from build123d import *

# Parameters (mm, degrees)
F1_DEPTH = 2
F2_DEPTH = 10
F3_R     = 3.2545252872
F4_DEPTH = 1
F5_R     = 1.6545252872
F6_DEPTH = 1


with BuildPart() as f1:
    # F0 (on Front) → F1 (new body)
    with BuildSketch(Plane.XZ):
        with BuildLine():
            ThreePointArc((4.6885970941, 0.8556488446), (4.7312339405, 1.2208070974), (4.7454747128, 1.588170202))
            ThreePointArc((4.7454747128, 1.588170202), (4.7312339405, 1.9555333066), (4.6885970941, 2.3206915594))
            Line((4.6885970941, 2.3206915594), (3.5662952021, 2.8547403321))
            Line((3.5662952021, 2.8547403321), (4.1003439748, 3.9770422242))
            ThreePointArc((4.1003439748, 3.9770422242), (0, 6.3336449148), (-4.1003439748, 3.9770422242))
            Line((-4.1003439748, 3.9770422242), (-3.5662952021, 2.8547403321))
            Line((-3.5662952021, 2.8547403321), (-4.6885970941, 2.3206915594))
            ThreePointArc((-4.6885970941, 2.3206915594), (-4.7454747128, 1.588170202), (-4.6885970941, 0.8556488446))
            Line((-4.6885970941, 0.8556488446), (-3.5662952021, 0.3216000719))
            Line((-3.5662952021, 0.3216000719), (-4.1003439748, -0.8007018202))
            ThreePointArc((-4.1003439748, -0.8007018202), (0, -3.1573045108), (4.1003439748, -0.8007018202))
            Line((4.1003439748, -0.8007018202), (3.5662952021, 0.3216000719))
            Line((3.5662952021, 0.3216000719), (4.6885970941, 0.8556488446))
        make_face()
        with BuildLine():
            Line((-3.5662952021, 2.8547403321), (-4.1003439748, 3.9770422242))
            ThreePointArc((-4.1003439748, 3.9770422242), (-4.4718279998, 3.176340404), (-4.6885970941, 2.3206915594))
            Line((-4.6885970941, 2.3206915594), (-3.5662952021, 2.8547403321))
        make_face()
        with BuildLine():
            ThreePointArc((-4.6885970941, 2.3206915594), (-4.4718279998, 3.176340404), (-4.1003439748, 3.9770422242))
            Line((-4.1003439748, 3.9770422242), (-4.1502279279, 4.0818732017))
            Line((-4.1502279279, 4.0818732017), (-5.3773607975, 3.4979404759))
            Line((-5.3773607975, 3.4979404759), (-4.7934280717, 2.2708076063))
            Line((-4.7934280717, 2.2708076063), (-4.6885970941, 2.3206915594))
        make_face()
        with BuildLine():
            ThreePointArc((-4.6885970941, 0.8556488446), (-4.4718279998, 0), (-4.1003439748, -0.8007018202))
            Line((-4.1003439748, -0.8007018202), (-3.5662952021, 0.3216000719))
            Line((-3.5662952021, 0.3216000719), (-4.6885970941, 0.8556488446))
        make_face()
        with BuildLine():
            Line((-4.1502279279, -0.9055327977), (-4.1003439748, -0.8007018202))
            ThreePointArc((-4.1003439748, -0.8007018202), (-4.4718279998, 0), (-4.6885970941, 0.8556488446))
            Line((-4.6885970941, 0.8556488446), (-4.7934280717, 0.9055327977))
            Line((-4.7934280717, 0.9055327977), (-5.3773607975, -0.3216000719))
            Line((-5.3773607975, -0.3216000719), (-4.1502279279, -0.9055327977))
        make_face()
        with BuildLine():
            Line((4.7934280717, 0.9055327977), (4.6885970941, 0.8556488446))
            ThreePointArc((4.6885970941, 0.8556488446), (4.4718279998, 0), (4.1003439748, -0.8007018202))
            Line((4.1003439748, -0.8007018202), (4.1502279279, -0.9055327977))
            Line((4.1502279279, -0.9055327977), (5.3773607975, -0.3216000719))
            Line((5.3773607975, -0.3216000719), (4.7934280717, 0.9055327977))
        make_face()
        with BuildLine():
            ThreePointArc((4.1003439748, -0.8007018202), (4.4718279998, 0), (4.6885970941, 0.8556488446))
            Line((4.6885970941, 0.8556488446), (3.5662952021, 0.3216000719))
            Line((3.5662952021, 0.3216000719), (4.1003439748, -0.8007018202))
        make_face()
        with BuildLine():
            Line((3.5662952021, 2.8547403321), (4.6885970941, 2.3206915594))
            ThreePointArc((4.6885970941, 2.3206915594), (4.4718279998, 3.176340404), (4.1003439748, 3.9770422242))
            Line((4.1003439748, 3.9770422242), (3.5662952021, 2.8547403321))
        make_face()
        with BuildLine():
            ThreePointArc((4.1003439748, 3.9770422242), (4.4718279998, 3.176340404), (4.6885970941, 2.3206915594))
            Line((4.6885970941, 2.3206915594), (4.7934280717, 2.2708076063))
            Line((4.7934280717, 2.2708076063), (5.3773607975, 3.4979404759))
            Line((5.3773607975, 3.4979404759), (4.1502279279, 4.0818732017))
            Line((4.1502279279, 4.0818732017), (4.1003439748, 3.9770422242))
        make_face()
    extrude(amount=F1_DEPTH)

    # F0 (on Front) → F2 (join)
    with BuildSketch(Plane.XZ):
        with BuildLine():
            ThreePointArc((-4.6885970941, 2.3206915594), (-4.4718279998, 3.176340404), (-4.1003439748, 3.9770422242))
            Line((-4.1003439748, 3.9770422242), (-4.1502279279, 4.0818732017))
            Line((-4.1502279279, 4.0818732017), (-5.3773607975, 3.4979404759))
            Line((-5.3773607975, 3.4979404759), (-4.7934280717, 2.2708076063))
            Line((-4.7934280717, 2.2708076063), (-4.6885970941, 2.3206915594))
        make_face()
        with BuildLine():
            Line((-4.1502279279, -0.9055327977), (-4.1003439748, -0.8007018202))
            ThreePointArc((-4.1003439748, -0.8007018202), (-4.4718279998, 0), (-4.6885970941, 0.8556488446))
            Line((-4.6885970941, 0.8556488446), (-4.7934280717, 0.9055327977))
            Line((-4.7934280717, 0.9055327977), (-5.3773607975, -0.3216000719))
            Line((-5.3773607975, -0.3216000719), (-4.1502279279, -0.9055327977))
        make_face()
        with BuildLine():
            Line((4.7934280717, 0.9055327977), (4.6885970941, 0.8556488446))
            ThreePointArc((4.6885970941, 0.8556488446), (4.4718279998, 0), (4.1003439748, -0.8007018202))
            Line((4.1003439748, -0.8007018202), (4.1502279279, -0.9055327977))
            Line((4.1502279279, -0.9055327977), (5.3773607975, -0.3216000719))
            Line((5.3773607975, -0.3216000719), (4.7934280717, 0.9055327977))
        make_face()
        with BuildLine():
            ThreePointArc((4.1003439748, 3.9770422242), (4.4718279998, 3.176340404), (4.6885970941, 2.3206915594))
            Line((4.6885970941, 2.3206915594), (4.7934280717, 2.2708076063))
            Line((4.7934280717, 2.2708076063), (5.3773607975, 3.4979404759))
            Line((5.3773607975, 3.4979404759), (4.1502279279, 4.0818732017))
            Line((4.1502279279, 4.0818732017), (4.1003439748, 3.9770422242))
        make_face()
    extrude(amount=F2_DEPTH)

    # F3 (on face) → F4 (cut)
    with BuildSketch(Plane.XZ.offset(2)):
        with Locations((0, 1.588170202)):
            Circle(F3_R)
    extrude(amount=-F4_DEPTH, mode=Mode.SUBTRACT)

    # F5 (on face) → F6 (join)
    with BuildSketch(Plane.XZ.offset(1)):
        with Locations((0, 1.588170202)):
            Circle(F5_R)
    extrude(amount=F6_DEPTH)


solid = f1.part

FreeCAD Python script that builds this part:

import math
import FreeCAD as App
import Part
import Sketcher

V = App.Vector
Q = App.Units.Quantity

doc = App.newDocument("Part")
params = doc.addObject("Spreadsheet::Sheet", "Params")
for row, (alias, value) in enumerate([
    ("pad1_length", "2 mm"),
    ("pad2_length", "10 mm"),
    ("pocket1_length", "1 mm"),
    ("pad3_length", "1 mm"),
], start=1):
    params.set(f"A{row}", alias)
    params.set(f"B{row}", "=" + value)
    params.setAlias(f"B{row}", alias)

body = doc.addObject("PartDesign::Body", "Body")

# Sketch on XZ plane
sketch1 = doc.addObject("Sketcher::SketchObject", "Sketch")
body.addObject(sketch1)
sketch1.AttachmentSupport = (doc.XZ_Plane, [""])
sketch1.MapMode = "FlatFace"
sketch1.addGeometry(Part.ArcOfCircle(Part.Circle(V(0, 1.59, 0), V(0, 0, 1), 4.75), math.radians(-8.88), math.radians(0)), False)
sketch1.addGeometry(Part.ArcOfCircle(Part.Circle(V(0, 1.59, 0), V(0, 0, 1), 4.75), math.radians(0), math.radians(8.88)), False)
sketch1.addGeometry(Part.LineSegment(V(4.69, 2.32, 0), V(4.79, 2.27, 0)), False)
sketch1.addGeometry(Part.LineSegment(V(4.79, 2.27, 0), V(5.38, 3.5, 0)), False)
sketch1.addGeometry(Part.LineSegment(V(5.38, 3.5, 0), V(4.15, 4.08, 0)), False)
sketch1.addGeometry(Part.LineSegment(V(4.15, 4.08, 0), V(4.1, 3.98, 0)), False)
sketch1.addGeometry(Part.ArcOfCircle(Part.Circle(V(0, 1.59, 0), V(0, 0, 1), 4.75), math.radians(30), math.radians(150)), False)
sketch1.addGeometry(Part.LineSegment(V(-4.1, 3.98, 0), V(-4.15, 4.08, 0)), False)
sketch1.addGeometry(Part.LineSegment(V(-4.15, 4.08, 0), V(-5.38, 3.5, 0)), False)
sketch1.addGeometry(Part.LineSegment(V(-5.38, 3.5, 0), V(-4.79, 2.27, 0)), False)
sketch1.addGeometry(Part.LineSegment(V(-4.79, 2.27, 0), V(-4.69, 2.32, 0)), False)
sketch1.addGeometry(Part.ArcOfCircle(Part.Circle(V(0, 1.59, 0), V(0, 0, 1), 4.75), math.radians(171.12), math.radians(188.88)), False)
sketch1.addGeometry(Part.LineSegment(V(-4.69, 0.86, 0), V(-4.79, 0.91, 0)), False)
sketch1.addGeometry(Part.LineSegment(V(-4.79, 0.91, 0), V(-5.38, -0.32, 0)), False)
sketch1.addGeometry(Part.LineSegment(V(-5.38, -0.32, 0), V(-4.15, -0.91, 0)), False)
sketch1.addGeometry(Part.LineSegment(V(-4.15, -0.91, 0), V(-4.1, -0.8, 0)), False)
sketch1.addGeometry(Part.ArcOfCircle(Part.Circle(V(0, 1.59, 0), V(0, 0, 1), 4.75), math.radians(-150), math.radians(-30)), False)
sketch1.addGeometry(Part.LineSegment(V(4.1, -0.8, 0), V(4.15, -0.91, 0)), False)
sketch1.addGeometry(Part.LineSegment(V(4.15, -0.91, 0), V(5.38, -0.32, 0)), False)
sketch1.addGeometry(Part.LineSegment(V(5.38, -0.32, 0), V(4.79, 0.91, 0)), False)
sketch1.addGeometry(Part.LineSegment(V(4.79, 0.91, 0), V(4.69, 0.86, 0)), False)
sketch1.addConstraint(Sketcher.Constraint("Tangent", 0, 2, 1, 1))
sketch1.addConstraint(Sketcher.Constraint("Coincident", 1, 2, 2, 1))
sketch1.addConstraint(Sketcher.Constraint("Coincident", 2, 2, 3, 1))
sketch1.addConstraint(Sketcher.Constraint("Coincident", 3, 2, 4, 1))
sketch1.addConstraint(Sketcher.Constraint("Coincident", 4, 2, 5, 1))
sketch1.addConstraint(Sketcher.Constraint("Coincident", 5, 2, 6, 1))
sketch1.addConstraint(Sketcher.Constraint("Coincident", 6, 2, 7, 1))
sketch1.addConstraint(Sketcher.Constraint("Coincident", 7, 2, 8, 1))
sketch1.addConstraint(Sketcher.Constraint("Coincident", 8, 2, 9, 1))
sketch1.addConstraint(Sketcher.Constraint("Coincident", 9, 2, 10, 1))
sketch1.addConstraint(Sketcher.Constraint("Coincident", 10, 2, 11, 1))
sketch1.addConstraint(Sketcher.Constraint("Coincident", 11, 2, 12, 1))
sketch1.addConstraint(Sketcher.Constraint("Coincident", 12, 2, 13, 1))
sketch1.addConstraint(Sketcher.Constraint("Coincident", 13, 2, 14, 1))
sketch1.addConstraint(Sketcher.Constraint("Coincident", 14, 2, 15, 1))
sketch1.addConstraint(Sketcher.Constraint("Coincident", 15, 2, 16, 1))
sketch1.addConstraint(Sketcher.Constraint("Coincident", 16, 2, 17, 1))
sketch1.addConstraint(Sketcher.Constraint("Coincident", 17, 2, 18, 1))
sketch1.addConstraint(Sketcher.Constraint("Coincident", 18, 2, 19, 1))
sketch1.addConstraint(Sketcher.Constraint("Coincident", 19, 2, 20, 1))
sketch1.addConstraint(Sketcher.Constraint("Coincident", 20, 2, 0, 1))
sketch1.addConstraint(Sketcher.Constraint("Coincident", 6, 3, 0, 3))
sketch1.addConstraint(Sketcher.Constraint("Coincident", 11, 3, 0, 3))
sketch1.addConstraint(Sketcher.Constraint("Coincident", 16, 3, 0, 3))
sketch1.addConstraint(Sketcher.Constraint("Equal", 0, 1))
sketch1.addConstraint(Sketcher.Constraint("Equal", 1, 6))
sketch1.addConstraint(Sketcher.Constraint("Equal", 6, 11))
sketch1.addConstraint(Sketcher.Constraint("Equal", 11, 16))
sketch1.addConstraint(Sketcher.Constraint("Symmetric", 5, 2, 6, 2, -2))
sketch1.addConstraint(Sketcher.Constraint("Symmetric", 4, 2, 7, 2, -2))
sketch1.addConstraint(Sketcher.Constraint("Symmetric", 3, 2, 8, 2, -2))
sketch1.addConstraint(Sketcher.Constraint("Symmetric", 2, 2, 9, 2, -2))
sketch1.addConstraint(Sketcher.Constraint("Symmetric", 14, 2, 17, 2, -2))
sketch1.addConstraint(Sketcher.Constraint("Symmetric", 13, 2, 18, 2, -2))
sketch1.addConstraint(Sketcher.Constraint("Symmetric", 12, 2, 19, 2, -2))
sketch1.addConstraint(Sketcher.Constraint("Perpendicular", 2, 3))
sketch1.addConstraint(Sketcher.Constraint("Perpendicular", 3, 4))
sketch1.addConstraint(Sketcher.Constraint("Perpendicular", 4, 5))
sketch1.addConstraint(Sketcher.Constraint("Perpendicular", 9, 10))
sketch1.addConstraint(Sketcher.Constraint("Perpendicular", 5, 12))
sketch1.addConstraint(Sketcher.Constraint("Perpendicular", 12, 13))
sketch1.addConstraint(Sketcher.Constraint("Perpendicular", 13, 14))
sketch1.addConstraint(Sketcher.Constraint("Perpendicular", 14, 15))
sketch1.addConstraint(Sketcher.Constraint("Perpendicular", 10, 17))
sketch1.addConstraint(Sketcher.Constraint("Perpendicular", 19, 20))
sketch1.addConstraint(Sketcher.Constraint("Horizontal", 16, 3, 0, 2))
sketch1.addConstraint(Sketcher.Constraint("Vertical", 10, 2, 11, 2))
sketch1.addConstraint(Sketcher.Constraint("Vertical", 9, 2, 12, 2))
sketch1.addConstraint(Sketcher.Constraint("Vertical", 8, 2, 13, 2))
sketch1.addConstraint(Sketcher.Constraint("Vertical", 7, 2, 14, 2))
sketch1.addConstraint(Sketcher.Constraint("Equal", 3, 4))
sketch1.addConstraint(Sketcher.Constraint("Equal", 2, 5))
sketch1.addConstraint(Sketcher.Constraint("Radius", 0, Q("4.745475 mm")))
sketch1.addConstraint(Sketcher.Constraint("DistanceY", 13, 2, -1, 1, Q("0.3216 mm")))
sketch1.addConstraint(Sketcher.Constraint("DistanceY", 15, 2, -1, 1, Q("0.800702 mm")))
sketch1.addConstraint(Sketcher.Constraint("DistanceX", 4, 2, 2, 2, Q("0.6432 mm")))
sketch1.addConstraint(Sketcher.Constraint("DistanceY", -1, 1, 0, 3, Q("1.58817 mm")))
pad1 = doc.addObject("PartDesign::Pad", "Pad")
body.addObject(pad1)
pad1.Profile = sketch1
pad1.setExpression("Length", "Params.pad1_length")

# Sketch on XZ plane
sketch2 = doc.addObject("Sketcher::SketchObject", "Sketch001")
body.addObject(sketch2)
sketch2.AttachmentSupport = (doc.XZ_Plane, [""])
sketch2.MapMode = "FlatFace"
sketch2.addGeometry(Part.ArcOfCircle(Part.Circle(V(0, 1.59, 0), V(0, 0, 1), 4.75), math.radians(150), math.radians(171)), False)
sketch2.addGeometry(Part.LineSegment(V(-4.1, 3.98, 0), V(-4.15, 4.08, 0)), False)
sketch2.addGeometry(Part.LineSegment(V(-4.15, 4.08, 0), V(-5.38, 3.5, 0)), False)
sketch2.addGeometry(Part.LineSegment(V(-5.38, 3.5, 0), V(-4.79, 2.27, 0)), False)
sketch2.addGeometry(Part.LineSegment(V(-4.79, 2.27, 0), V(-4.69, 2.32, 0)), False)
sketch2.addGeometry(Part.LineSegment(V(-4.15, -0.91, 0), V(-4.1, -0.8, 0)), False)
sketch2.addGeometry(Part.ArcOfCircle(Part.Circle(V(0, 1.59, 0), V(0, 0, 1), 4.75), math.radians(-171), math.radians(-150)), False)
sketch2.addGeometry(Part.LineSegment(V(-4.69, 0.86, 0), V(-4.79, 0.91, 0)), False)
sketch2.addGeometry(Part.LineSegment(V(-4.79, 0.91, 0), V(-5.38, -0.32, 0)), False)
sketch2.addGeometry(Part.LineSegment(V(-5.38, -0.32, 0), V(-4.15, -0.91, 0)), False)
sketch2.addGeometry(Part.LineSegment(V(4.79, 0.91, 0), V(4.69, 0.86, 0)), False)
sketch2.addGeometry(Part.ArcOfCircle(Part.Circle(V(0, 1.59, 0), V(0, 0, 1), 4.75), math.radians(-30), math.radians(-9)), False)
sketch2.addGeometry(Part.LineSegment(V(4.1, -0.8, 0), V(4.15, -0.91, 0)), False)
sketch2.addGeometry(Part.LineSegment(V(4.15, -0.91, 0), V(5.38, -0.32, 0)), False)
sketch2.addGeometry(Part.LineSegment(V(5.38, -0.32, 0), V(4.79, 0.91, 0)), False)
sketch2.addGeometry(Part.ArcOfCircle(Part.Circle(V(0, 1.59, 0), V(0, 0, 1), 4.75), math.radians(9), math.radians(30)), False)
sketch2.addGeometry(Part.LineSegment(V(4.69, 2.32, 0), V(4.79, 2.27, 0)), False)
sketch2.addGeometry(Part.LineSegment(V(4.79, 2.27, 0), V(5.38, 3.5, 0)), False)
sketch2.addGeometry(Part.LineSegment(V(5.38, 3.5, 0), V(4.15, 4.08, 0)), False)
sketch2.addGeometry(Part.LineSegment(V(4.15, 4.08, 0), V(4.1, 3.98, 0)), False)
sketch2.addConstraint(Sketcher.Constraint("Coincident", 0, 1, 1, 1))
sketch2.addConstraint(Sketcher.Constraint("Coincident", 1, 2, 2, 1))
sketch2.addConstraint(Sketcher.Constraint("Coincident", 2, 2, 3, 1))
sketch2.addConstraint(Sketcher.Constraint("Coincident", 3, 2, 4, 1))
sketch2.addConstraint(Sketcher.Constraint("Coincident", 4, 2, 0, 2))
sketch2.addConstraint(Sketcher.Constraint("Coincident", 5, 2, 6, 2))
sketch2.addConstraint(Sketcher.Constraint("Coincident", 6, 1, 7, 1))
sketch2.addConstraint(Sketcher.Constraint("Coincident", 7, 2, 8, 1))
sketch2.addConstraint(Sketcher.Constraint("Coincident", 8, 2, 9, 1))
sketch2.addConstraint(Sketcher.Constraint("Coincident", 9, 2, 5, 1))
sketch2.addConstraint(Sketcher.Constraint("Coincident", 10, 2, 11, 2))
sketch2.addConstraint(Sketcher.Constraint("Coincident", 11, 1, 12, 1))
sketch2.addConstraint(Sketcher.Constraint("Coincident", 12, 2, 13, 1))
sketch2.addConstraint(Sketcher.Constraint("Coincident", 13, 2, 14, 1))
sketch2.addConstraint(Sketcher.Constraint("Coincident", 14, 2, 10, 1))
sketch2.addConstraint(Sketcher.Constraint("Coincident", 15, 1, 16, 1))
sketch2.addConstraint(Sketcher.Constraint("Coincident", 16, 2, 17, 1))
sketch2.addConstraint(Sketcher.Constraint("Coincident", 17, 2, 18, 1))
sketch2.addConstraint(Sketcher.Constraint("Coincident", 18, 2, 19, 1))
sketch2.addConstraint(Sketcher.Constraint("Coincident", 19, 2, 15, 2))
sketch2.addConstraint(Sketcher.Constraint("Coincident", 6, 3, 0, 3))
sketch2.addConstraint(Sketcher.Constraint("Coincident", 11, 3, 0, 3))
sketch2.addConstraint(Sketcher.Constraint("Coincident", 15, 3, 0, 3))
sketch2.addConstraint(Sketcher.Constraint("Equal", 0, 6))
sketch2.addConstraint(Sketcher.Constraint("Equal", 6, 11))
sketch2.addConstraint(Sketcher.Constraint("Equal", 11, 15))
sketch2.addConstraint(Sketcher.Constraint("Symmetric", 6, 1, 10, 2, -2))
sketch2.addConstraint(Sketcher.Constraint("Symmetric", 9, 2, 12, 2, -2))
sketch2.addConstraint(Sketcher.Constraint("Symmetric", 8, 2, 13, 2, -2))
sketch2.addConstraint(Sketcher.Constraint("Symmetric", 7, 2, 14, 2, -2))
sketch2.addConstraint(Sketcher.Constraint("Symmetric", 3, 2, 16, 2, -2))
sketch2.addConstraint(Sketcher.Constraint("Symmetric", 2, 2, 17, 2, -2))
sketch2.addConstraint(Sketcher.Constraint("Symmetric", 1, 2, 18, 2, -2))
sketch2.addConstraint(Sketcher.Constraint("Perpendicular", 1, 2))
sketch2.addConstraint(Sketcher.Constraint("Perpendicular", 2, 3))
sketch2.addConstraint(Sketcher.Constraint("Perpendicular", 3, 4))
sketch2.addConstraint(Sketcher.Constraint("Perpendicular", 5, 7))
sketch2.addConstraint(Sketcher.Constraint("Perpendicular", 7, 8))
sketch2.addConstraint(Sketcher.Constraint("Perpendicular", 8, 9))
sketch2.addConstraint(Sketcher.Constraint("Parallel", 4, 10))
sketch2.addConstraint(Sketcher.Constraint("Perpendicular", 10, 12))
sketch2.addConstraint(Sketcher.Constraint("Parallel", 9, 16))
sketch2.addConstraint(Sketcher.Constraint("Perpendicular", 18, 19))
sketch2.addConstraint(Sketcher.Constraint("Vertical", 0, 1, 5, 2))
sketch2.addConstraint(Sketcher.Constraint("Vertical", 4, 2, 6, 1))
sketch2.addConstraint(Sketcher.Constraint("Vertical", 3, 2, 7, 2))
sketch2.addConstraint(Sketcher.Constraint("Vertical", 2, 2, 8, 2))
sketch2.addConstraint(Sketcher.Constraint("Equal", 2, 3))
sketch2.addConstraint(Sketcher.Constraint("Equal", 1, 4))
sketch2.addConstraint(Sketcher.Constraint("Radius", 0, Q("4.745475 mm")))
sketch2.addConstraint(Sketcher.Constraint("DistanceY", 5, 2, -1, 1, Q("0.800702 mm")))
sketch2.addConstraint(Sketcher.Constraint("DistanceY", 8, 2, -1, 1, Q("0.3216 mm")))
sketch2.addConstraint(Sketcher.Constraint("DistanceX", 3, 2, 1, 2, Q("0.6432 mm")))
sketch2.addConstraint(Sketcher.Constraint("DistanceY", -1, 1, 0, 3, Q("1.58817 mm")))
pad2 = doc.addObject("PartDesign::Pad", "Pad001")
body.addObject(pad2)
pad2.Profile = sketch2
pad2.setExpression("Length", "Params.pad2_length")

# Sketch on XZ plane
sketch3 = doc.addObject("Sketcher::SketchObject", "Sketch002")
body.addObject(sketch3)
sketch3.AttachmentSupport = (doc.XZ_Plane, [""])
sketch3.MapMode = "FlatFace"
sketch3.AttachmentOffset = App.Placement(V(0, 0, 2), App.Rotation())
sketch3.addGeometry(Part.Circle(V(0, 1.6, 0), V(0, 0, 1), 3.3), False)
sketch3.addConstraint(Sketcher.Constraint("PointOnObject", 0, 3, -2))
sketch3.addConstraint(Sketcher.Constraint("Diameter", 0, Q("6.509051 mm")))
sketch3.addConstraint(Sketcher.Constraint("DistanceY", -1, 1, 0, 3, Q("1.58817 mm")))
pocket1 = doc.addObject("PartDesign::Pocket", "Pocket")
body.addObject(pocket1)
pocket1.Profile = sketch3
pocket1.setExpression("Length", "Params.pocket1_length")

# Sketch on XZ plane
sketch4 = doc.addObject("Sketcher::SketchObject", "Sketch003")
body.addObject(sketch4)
sketch4.AttachmentSupport = (doc.XZ_Plane, [""])
sketch4.MapMode = "FlatFace"
sketch4.AttachmentOffset = App.Placement(V(0, 0, 1), App.Rotation())
sketch4.addGeometry(Part.Circle(V(0, 1.6, 0), V(0, 0, 1), 1.7), False)
sketch4.addConstraint(Sketcher.Constraint("PointOnObject", 0, 3, -2))
sketch4.addConstraint(Sketcher.Constraint("Diameter", 0, Q("3.309051 mm")))
sketch4.addConstraint(Sketcher.Constraint("DistanceY", -1, 1, 0, 3, Q("1.58817 mm")))
pad3 = doc.addObject("PartDesign::Pad", "Pad002")
body.addObject(pad3)
pad3.Profile = sketch4
pad3.setExpression("Length", "Params.pad3_length")

doc.recompute()
